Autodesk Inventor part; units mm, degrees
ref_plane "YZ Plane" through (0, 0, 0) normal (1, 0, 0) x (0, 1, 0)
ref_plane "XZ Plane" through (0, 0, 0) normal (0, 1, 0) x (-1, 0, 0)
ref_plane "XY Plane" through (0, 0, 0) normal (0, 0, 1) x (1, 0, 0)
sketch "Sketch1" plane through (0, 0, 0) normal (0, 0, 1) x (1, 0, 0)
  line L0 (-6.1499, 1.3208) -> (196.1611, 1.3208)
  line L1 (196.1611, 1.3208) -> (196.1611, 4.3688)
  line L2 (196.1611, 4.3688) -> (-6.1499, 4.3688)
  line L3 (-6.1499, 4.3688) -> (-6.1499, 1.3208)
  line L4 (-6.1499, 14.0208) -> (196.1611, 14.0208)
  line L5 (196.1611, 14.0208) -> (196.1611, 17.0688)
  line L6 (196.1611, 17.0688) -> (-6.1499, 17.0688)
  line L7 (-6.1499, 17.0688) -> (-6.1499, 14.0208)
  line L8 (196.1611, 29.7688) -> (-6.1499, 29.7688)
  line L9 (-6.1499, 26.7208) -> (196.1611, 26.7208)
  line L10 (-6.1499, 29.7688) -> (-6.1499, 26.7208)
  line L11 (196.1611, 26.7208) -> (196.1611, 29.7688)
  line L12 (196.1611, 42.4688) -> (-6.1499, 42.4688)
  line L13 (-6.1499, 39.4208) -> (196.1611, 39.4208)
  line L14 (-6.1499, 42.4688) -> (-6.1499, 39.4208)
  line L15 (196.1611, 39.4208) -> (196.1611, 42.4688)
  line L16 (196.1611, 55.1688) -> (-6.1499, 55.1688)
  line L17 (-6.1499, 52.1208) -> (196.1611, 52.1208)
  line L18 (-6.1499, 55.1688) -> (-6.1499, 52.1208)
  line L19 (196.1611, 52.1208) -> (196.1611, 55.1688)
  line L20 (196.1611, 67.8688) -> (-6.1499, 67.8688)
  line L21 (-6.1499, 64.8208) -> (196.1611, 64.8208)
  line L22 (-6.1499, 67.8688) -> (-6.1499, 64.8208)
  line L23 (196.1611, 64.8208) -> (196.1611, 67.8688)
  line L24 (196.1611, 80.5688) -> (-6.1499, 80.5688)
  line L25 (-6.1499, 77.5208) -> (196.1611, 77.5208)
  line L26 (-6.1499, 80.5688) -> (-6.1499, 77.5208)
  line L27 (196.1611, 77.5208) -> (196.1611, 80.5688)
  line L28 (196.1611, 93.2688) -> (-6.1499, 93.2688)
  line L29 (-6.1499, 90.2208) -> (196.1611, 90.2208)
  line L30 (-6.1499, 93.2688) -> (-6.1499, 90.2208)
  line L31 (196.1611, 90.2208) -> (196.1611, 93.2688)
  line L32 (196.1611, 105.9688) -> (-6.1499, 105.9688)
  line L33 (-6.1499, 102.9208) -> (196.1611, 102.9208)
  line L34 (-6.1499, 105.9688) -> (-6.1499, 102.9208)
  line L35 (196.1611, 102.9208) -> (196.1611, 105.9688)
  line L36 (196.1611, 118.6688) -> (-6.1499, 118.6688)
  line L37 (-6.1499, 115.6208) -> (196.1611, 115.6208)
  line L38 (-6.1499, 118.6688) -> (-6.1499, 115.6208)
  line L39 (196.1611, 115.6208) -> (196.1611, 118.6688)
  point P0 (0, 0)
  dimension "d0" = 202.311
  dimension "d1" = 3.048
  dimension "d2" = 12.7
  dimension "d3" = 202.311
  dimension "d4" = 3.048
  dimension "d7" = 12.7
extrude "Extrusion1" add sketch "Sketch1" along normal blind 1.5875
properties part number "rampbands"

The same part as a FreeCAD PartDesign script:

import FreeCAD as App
import Part
import Sketcher
from FreeCAD import Vector
Q = App.Units.Quantity


def add_polygon(sketch, points):
    """Adds a closed chain of lines whose ends are joined by coincident constraints."""
    first, n = sketch.GeometryCount, len(points)
    for a, b in zip(points, points[1:] + points[:1]):
        sketch.addGeometry(Part.LineSegment(App.Vector(*a, 0), App.Vector(*b, 0)), False)
    for i in range(n):
        sketch.addConstraint(Sketcher.Constraint("Coincident", first + i, 2, first + (i + 1) % n, 1))

doc = App.newDocument("Part")
params = doc.addObject("Spreadsheet::Sheet", "Params")
for row, (alias, value) in enumerate([
    ("sketch1_height", "0.12 in"),
    ("sketch1_width", "7.965 in"),
    ("pad1_length", "0.0625 in"),
], start=1):
    params.set(f"A{row}", alias)
    params.set(f"B{row}", "=" + value)
    params.setAlias(f"B{row}", alias)

body = doc.addObject("PartDesign::Body", "Body")
body.AllowCompound = True

sketch1 = body.newObject("Sketcher::SketchObject", "Sketch")
sketch1.AttachmentSupport = (doc.getObject("XY_Plane"), [""])
sketch1.MapMode = "FlatFace"
add_polygon(sketch1, [(-6.1, 4.4), (-6.1, 1.3), (196.2, 1.3), (196.2, 4.4)])
add_polygon(sketch1, [(-6.1, 17.1), (-6.1, 14), (196.2, 14), (196.2, 17.1)])
add_polygon(sketch1, [(196.2, 26.7), (196.2, 29.8), (-6.1, 29.8), (-6.1, 26.7)])
add_polygon(sketch1, [(196.2, 39.4), (196.2, 42.5), (-6.1, 42.5), (-6.1, 39.4)])
add_polygon(sketch1, [(196.2, 52.1), (196.2, 55.2), (-6.1, 55.2), (-6.1, 52.1)])
add_polygon(sketch1, [(196.2, 64.8), (196.2, 67.9), (-6.1, 67.9), (-6.1, 64.8)])
add_polygon(sketch1, [(196.2, 77.5), (196.2, 80.6), (-6.1, 80.6), (-6.1, 77.5)])
add_polygon(sketch1, [(196.2, 90.2), (196.2, 93.3), (-6.1, 93.3), (-6.1, 90.2)])
add_polygon(sketch1, [(196.2, 102.9), (196.2, 106), (-6.1, 106), (-6.1, 102.9)])
add_polygon(sketch1, [(196.2, 115.6), (196.2, 118.7), (-6.1, 118.7), (-6.1, 115.6)])
sketch1.addConstraint([
    Sketcher.Constraint("Vertical", 0),
    Sketcher.Constraint("Horizontal", 1),
    Sketcher.Constraint("Vertical", 2),
    Sketcher.Constraint("Horizontal", 3),
    Sketcher.Constraint("Vertical", 4),
    Sketcher.Constraint("Horizontal", 5),
    Sketcher.Constraint("Vertical", 6),
    Sketcher.Constraint("Horizontal", 7),
    Sketcher.Constraint("Vertical", 8),
    Sketcher.Constraint("Horizontal", 9),
    Sketcher.Constraint("Vertical", 10),
    Sketcher.Constraint("Horizontal", 11),
    Sketcher.Constraint("Vertical", 12),
    Sketcher.Constraint("Horizontal", 13),
    Sketcher.Constraint("Vertical", 14),
    Sketcher.Constraint("Horizontal", 15),
    Sketcher.Constraint("Vertical", 16),
    Sketcher.Constraint("Horizontal", 17),
    Sketcher.Constraint("Vertical", 18),
    Sketcher.Constraint("Horizontal", 19),
    Sketcher.Constraint("Vertical", 20),
    Sketcher.Constraint("Horizontal", 21),
    Sketcher.Constraint("Vertical", 22),
    Sketcher.Constraint("Horizontal", 23),
    Sketcher.Constraint("Vertical", 24),
    Sketcher.Constraint("Horizontal", 25),
    Sketcher.Constraint("Vertical", 26),
    Sketcher.Constraint("Horizontal", 27),
    Sketcher.Constraint("Vertical", 28),
    Sketcher.Constraint("Horizontal", 29),
    Sketcher.Constraint("Vertical", 30),
    Sketcher.Constraint("Horizontal", 31),
    Sketcher.Constraint("Vertical", 32),
    Sketcher.Constraint("Horizontal", 33),
    Sketcher.Constraint("Vertical", 34),
    Sketcher.Constraint("Horizontal", 35),
    Sketcher.Constraint("Vertical", 36),
    Sketcher.Constraint("Horizontal", 37),
    Sketcher.Constraint("Vertical", 38),
    Sketcher.Constraint("Horizontal", 39),
    Sketcher.Constraint("Vertical", 3, 2, 4, 2),
    Sketcher.Constraint("Vertical", 2, 2, 5, 2),
    Sketcher.Constraint("Vertical", 6, 2, 8, 2),
    Sketcher.Constraint("Vertical", 7, 2, 9, 2),
    Sketcher.Constraint("Vertical", 11, 2, 12, 2),
    Sketcher.Constraint("Vertical", 10, 2, 13, 2),
    Sketcher.Constraint("Vertical", 15, 2, 16, 2),
    Sketcher.Constraint("Vertical", 14, 2, 17, 2),
    Sketcher.Constraint("Vertical", 19, 2, 20, 2),
    Sketcher.Constraint("Vertical", 18, 2, 21, 2),
    Sketcher.Constraint("Vertical", 23, 2, 24, 2),
    Sketcher.Constraint("Vertical", 22, 2, 25, 2),
    Sketcher.Constraint("Vertical", 27, 2, 28, 2),
    Sketcher.Constraint("Vertical", 26, 2, 29, 2),
    Sketcher.Constraint("Vertical", 31, 2, 32, 2),
    Sketcher.Constraint("Vertical", 30, 2, 33, 2),
    Sketcher.Constraint("Vertical", 35, 2, 36, 2),
    Sketcher.Constraint("Vertical", 34, 2, 37, 2),
    Sketcher.Constraint("Equal", 2, 4),
    Sketcher.Constraint("Equal", 6, 8),
    Sketcher.Constraint("Equal", 10, 12),
    Sketcher.Constraint("Equal", 14, 16),
    Sketcher.Constraint("Equal", 18, 20),
    Sketcher.Constraint("Equal", 22, 24),
    Sketcher.Constraint("Equal", 26, 28),
    Sketcher.Constraint("Equal", 30, 32),
    Sketcher.Constraint("Equal", 34, 36),
    Sketcher.Constraint("DistanceY", 0, 2, 0, 1, Q("0.12 in")),
    Sketcher.Constraint("DistanceY", 0, 2, 4, 2, Q("0.5 in")),
    Sketcher.Constraint("DistanceY", 6, 2, 8, 2, Q("0.5 in")),
    Sketcher.Constraint("DistanceY", 8, 2, 12, 2, Q("0.5 in")),
    Sketcher.Constraint("DistanceY", 12, 2, 16, 2, Q("0.5 in")),
    Sketcher.Constraint("DistanceY", 16, 2, 20, 2, Q("0.5 in")),
    Sketcher.Constraint("DistanceY", 20, 2, 24, 2, Q("0.5 in")),
    Sketcher.Constraint("DistanceY", 24, 2, 28, 2, Q("0.5 in")),
    Sketcher.Constraint("DistanceY", 28, 2, 32, 2, Q("0.5 in")),
    Sketcher.Constraint("DistanceY", 32, 2, 36, 2, Q("0.5 in")),
    Sketcher.Constraint("DistanceX", 1, 1, 1, 2, Q("7.965 in")),
    Sketcher.Constraint("DistanceY", -1, 1, 0, 2, Q("0.052 in")),
    Sketcher.Constraint("DistanceX", 0, 2, -1, 1, 6.15),
])
sketch1.setExpression("Constraints[107]", "Params.sketch1_height")
sketch1.setExpression("Constraints[117]", "Params.sketch1_width")
pad1 = body.newObject("PartDesign::Pad", "Pad")
pad1.Profile = sketch1
pad1.setExpression("Length", "Params.pad1_length")

doc.recompute()
